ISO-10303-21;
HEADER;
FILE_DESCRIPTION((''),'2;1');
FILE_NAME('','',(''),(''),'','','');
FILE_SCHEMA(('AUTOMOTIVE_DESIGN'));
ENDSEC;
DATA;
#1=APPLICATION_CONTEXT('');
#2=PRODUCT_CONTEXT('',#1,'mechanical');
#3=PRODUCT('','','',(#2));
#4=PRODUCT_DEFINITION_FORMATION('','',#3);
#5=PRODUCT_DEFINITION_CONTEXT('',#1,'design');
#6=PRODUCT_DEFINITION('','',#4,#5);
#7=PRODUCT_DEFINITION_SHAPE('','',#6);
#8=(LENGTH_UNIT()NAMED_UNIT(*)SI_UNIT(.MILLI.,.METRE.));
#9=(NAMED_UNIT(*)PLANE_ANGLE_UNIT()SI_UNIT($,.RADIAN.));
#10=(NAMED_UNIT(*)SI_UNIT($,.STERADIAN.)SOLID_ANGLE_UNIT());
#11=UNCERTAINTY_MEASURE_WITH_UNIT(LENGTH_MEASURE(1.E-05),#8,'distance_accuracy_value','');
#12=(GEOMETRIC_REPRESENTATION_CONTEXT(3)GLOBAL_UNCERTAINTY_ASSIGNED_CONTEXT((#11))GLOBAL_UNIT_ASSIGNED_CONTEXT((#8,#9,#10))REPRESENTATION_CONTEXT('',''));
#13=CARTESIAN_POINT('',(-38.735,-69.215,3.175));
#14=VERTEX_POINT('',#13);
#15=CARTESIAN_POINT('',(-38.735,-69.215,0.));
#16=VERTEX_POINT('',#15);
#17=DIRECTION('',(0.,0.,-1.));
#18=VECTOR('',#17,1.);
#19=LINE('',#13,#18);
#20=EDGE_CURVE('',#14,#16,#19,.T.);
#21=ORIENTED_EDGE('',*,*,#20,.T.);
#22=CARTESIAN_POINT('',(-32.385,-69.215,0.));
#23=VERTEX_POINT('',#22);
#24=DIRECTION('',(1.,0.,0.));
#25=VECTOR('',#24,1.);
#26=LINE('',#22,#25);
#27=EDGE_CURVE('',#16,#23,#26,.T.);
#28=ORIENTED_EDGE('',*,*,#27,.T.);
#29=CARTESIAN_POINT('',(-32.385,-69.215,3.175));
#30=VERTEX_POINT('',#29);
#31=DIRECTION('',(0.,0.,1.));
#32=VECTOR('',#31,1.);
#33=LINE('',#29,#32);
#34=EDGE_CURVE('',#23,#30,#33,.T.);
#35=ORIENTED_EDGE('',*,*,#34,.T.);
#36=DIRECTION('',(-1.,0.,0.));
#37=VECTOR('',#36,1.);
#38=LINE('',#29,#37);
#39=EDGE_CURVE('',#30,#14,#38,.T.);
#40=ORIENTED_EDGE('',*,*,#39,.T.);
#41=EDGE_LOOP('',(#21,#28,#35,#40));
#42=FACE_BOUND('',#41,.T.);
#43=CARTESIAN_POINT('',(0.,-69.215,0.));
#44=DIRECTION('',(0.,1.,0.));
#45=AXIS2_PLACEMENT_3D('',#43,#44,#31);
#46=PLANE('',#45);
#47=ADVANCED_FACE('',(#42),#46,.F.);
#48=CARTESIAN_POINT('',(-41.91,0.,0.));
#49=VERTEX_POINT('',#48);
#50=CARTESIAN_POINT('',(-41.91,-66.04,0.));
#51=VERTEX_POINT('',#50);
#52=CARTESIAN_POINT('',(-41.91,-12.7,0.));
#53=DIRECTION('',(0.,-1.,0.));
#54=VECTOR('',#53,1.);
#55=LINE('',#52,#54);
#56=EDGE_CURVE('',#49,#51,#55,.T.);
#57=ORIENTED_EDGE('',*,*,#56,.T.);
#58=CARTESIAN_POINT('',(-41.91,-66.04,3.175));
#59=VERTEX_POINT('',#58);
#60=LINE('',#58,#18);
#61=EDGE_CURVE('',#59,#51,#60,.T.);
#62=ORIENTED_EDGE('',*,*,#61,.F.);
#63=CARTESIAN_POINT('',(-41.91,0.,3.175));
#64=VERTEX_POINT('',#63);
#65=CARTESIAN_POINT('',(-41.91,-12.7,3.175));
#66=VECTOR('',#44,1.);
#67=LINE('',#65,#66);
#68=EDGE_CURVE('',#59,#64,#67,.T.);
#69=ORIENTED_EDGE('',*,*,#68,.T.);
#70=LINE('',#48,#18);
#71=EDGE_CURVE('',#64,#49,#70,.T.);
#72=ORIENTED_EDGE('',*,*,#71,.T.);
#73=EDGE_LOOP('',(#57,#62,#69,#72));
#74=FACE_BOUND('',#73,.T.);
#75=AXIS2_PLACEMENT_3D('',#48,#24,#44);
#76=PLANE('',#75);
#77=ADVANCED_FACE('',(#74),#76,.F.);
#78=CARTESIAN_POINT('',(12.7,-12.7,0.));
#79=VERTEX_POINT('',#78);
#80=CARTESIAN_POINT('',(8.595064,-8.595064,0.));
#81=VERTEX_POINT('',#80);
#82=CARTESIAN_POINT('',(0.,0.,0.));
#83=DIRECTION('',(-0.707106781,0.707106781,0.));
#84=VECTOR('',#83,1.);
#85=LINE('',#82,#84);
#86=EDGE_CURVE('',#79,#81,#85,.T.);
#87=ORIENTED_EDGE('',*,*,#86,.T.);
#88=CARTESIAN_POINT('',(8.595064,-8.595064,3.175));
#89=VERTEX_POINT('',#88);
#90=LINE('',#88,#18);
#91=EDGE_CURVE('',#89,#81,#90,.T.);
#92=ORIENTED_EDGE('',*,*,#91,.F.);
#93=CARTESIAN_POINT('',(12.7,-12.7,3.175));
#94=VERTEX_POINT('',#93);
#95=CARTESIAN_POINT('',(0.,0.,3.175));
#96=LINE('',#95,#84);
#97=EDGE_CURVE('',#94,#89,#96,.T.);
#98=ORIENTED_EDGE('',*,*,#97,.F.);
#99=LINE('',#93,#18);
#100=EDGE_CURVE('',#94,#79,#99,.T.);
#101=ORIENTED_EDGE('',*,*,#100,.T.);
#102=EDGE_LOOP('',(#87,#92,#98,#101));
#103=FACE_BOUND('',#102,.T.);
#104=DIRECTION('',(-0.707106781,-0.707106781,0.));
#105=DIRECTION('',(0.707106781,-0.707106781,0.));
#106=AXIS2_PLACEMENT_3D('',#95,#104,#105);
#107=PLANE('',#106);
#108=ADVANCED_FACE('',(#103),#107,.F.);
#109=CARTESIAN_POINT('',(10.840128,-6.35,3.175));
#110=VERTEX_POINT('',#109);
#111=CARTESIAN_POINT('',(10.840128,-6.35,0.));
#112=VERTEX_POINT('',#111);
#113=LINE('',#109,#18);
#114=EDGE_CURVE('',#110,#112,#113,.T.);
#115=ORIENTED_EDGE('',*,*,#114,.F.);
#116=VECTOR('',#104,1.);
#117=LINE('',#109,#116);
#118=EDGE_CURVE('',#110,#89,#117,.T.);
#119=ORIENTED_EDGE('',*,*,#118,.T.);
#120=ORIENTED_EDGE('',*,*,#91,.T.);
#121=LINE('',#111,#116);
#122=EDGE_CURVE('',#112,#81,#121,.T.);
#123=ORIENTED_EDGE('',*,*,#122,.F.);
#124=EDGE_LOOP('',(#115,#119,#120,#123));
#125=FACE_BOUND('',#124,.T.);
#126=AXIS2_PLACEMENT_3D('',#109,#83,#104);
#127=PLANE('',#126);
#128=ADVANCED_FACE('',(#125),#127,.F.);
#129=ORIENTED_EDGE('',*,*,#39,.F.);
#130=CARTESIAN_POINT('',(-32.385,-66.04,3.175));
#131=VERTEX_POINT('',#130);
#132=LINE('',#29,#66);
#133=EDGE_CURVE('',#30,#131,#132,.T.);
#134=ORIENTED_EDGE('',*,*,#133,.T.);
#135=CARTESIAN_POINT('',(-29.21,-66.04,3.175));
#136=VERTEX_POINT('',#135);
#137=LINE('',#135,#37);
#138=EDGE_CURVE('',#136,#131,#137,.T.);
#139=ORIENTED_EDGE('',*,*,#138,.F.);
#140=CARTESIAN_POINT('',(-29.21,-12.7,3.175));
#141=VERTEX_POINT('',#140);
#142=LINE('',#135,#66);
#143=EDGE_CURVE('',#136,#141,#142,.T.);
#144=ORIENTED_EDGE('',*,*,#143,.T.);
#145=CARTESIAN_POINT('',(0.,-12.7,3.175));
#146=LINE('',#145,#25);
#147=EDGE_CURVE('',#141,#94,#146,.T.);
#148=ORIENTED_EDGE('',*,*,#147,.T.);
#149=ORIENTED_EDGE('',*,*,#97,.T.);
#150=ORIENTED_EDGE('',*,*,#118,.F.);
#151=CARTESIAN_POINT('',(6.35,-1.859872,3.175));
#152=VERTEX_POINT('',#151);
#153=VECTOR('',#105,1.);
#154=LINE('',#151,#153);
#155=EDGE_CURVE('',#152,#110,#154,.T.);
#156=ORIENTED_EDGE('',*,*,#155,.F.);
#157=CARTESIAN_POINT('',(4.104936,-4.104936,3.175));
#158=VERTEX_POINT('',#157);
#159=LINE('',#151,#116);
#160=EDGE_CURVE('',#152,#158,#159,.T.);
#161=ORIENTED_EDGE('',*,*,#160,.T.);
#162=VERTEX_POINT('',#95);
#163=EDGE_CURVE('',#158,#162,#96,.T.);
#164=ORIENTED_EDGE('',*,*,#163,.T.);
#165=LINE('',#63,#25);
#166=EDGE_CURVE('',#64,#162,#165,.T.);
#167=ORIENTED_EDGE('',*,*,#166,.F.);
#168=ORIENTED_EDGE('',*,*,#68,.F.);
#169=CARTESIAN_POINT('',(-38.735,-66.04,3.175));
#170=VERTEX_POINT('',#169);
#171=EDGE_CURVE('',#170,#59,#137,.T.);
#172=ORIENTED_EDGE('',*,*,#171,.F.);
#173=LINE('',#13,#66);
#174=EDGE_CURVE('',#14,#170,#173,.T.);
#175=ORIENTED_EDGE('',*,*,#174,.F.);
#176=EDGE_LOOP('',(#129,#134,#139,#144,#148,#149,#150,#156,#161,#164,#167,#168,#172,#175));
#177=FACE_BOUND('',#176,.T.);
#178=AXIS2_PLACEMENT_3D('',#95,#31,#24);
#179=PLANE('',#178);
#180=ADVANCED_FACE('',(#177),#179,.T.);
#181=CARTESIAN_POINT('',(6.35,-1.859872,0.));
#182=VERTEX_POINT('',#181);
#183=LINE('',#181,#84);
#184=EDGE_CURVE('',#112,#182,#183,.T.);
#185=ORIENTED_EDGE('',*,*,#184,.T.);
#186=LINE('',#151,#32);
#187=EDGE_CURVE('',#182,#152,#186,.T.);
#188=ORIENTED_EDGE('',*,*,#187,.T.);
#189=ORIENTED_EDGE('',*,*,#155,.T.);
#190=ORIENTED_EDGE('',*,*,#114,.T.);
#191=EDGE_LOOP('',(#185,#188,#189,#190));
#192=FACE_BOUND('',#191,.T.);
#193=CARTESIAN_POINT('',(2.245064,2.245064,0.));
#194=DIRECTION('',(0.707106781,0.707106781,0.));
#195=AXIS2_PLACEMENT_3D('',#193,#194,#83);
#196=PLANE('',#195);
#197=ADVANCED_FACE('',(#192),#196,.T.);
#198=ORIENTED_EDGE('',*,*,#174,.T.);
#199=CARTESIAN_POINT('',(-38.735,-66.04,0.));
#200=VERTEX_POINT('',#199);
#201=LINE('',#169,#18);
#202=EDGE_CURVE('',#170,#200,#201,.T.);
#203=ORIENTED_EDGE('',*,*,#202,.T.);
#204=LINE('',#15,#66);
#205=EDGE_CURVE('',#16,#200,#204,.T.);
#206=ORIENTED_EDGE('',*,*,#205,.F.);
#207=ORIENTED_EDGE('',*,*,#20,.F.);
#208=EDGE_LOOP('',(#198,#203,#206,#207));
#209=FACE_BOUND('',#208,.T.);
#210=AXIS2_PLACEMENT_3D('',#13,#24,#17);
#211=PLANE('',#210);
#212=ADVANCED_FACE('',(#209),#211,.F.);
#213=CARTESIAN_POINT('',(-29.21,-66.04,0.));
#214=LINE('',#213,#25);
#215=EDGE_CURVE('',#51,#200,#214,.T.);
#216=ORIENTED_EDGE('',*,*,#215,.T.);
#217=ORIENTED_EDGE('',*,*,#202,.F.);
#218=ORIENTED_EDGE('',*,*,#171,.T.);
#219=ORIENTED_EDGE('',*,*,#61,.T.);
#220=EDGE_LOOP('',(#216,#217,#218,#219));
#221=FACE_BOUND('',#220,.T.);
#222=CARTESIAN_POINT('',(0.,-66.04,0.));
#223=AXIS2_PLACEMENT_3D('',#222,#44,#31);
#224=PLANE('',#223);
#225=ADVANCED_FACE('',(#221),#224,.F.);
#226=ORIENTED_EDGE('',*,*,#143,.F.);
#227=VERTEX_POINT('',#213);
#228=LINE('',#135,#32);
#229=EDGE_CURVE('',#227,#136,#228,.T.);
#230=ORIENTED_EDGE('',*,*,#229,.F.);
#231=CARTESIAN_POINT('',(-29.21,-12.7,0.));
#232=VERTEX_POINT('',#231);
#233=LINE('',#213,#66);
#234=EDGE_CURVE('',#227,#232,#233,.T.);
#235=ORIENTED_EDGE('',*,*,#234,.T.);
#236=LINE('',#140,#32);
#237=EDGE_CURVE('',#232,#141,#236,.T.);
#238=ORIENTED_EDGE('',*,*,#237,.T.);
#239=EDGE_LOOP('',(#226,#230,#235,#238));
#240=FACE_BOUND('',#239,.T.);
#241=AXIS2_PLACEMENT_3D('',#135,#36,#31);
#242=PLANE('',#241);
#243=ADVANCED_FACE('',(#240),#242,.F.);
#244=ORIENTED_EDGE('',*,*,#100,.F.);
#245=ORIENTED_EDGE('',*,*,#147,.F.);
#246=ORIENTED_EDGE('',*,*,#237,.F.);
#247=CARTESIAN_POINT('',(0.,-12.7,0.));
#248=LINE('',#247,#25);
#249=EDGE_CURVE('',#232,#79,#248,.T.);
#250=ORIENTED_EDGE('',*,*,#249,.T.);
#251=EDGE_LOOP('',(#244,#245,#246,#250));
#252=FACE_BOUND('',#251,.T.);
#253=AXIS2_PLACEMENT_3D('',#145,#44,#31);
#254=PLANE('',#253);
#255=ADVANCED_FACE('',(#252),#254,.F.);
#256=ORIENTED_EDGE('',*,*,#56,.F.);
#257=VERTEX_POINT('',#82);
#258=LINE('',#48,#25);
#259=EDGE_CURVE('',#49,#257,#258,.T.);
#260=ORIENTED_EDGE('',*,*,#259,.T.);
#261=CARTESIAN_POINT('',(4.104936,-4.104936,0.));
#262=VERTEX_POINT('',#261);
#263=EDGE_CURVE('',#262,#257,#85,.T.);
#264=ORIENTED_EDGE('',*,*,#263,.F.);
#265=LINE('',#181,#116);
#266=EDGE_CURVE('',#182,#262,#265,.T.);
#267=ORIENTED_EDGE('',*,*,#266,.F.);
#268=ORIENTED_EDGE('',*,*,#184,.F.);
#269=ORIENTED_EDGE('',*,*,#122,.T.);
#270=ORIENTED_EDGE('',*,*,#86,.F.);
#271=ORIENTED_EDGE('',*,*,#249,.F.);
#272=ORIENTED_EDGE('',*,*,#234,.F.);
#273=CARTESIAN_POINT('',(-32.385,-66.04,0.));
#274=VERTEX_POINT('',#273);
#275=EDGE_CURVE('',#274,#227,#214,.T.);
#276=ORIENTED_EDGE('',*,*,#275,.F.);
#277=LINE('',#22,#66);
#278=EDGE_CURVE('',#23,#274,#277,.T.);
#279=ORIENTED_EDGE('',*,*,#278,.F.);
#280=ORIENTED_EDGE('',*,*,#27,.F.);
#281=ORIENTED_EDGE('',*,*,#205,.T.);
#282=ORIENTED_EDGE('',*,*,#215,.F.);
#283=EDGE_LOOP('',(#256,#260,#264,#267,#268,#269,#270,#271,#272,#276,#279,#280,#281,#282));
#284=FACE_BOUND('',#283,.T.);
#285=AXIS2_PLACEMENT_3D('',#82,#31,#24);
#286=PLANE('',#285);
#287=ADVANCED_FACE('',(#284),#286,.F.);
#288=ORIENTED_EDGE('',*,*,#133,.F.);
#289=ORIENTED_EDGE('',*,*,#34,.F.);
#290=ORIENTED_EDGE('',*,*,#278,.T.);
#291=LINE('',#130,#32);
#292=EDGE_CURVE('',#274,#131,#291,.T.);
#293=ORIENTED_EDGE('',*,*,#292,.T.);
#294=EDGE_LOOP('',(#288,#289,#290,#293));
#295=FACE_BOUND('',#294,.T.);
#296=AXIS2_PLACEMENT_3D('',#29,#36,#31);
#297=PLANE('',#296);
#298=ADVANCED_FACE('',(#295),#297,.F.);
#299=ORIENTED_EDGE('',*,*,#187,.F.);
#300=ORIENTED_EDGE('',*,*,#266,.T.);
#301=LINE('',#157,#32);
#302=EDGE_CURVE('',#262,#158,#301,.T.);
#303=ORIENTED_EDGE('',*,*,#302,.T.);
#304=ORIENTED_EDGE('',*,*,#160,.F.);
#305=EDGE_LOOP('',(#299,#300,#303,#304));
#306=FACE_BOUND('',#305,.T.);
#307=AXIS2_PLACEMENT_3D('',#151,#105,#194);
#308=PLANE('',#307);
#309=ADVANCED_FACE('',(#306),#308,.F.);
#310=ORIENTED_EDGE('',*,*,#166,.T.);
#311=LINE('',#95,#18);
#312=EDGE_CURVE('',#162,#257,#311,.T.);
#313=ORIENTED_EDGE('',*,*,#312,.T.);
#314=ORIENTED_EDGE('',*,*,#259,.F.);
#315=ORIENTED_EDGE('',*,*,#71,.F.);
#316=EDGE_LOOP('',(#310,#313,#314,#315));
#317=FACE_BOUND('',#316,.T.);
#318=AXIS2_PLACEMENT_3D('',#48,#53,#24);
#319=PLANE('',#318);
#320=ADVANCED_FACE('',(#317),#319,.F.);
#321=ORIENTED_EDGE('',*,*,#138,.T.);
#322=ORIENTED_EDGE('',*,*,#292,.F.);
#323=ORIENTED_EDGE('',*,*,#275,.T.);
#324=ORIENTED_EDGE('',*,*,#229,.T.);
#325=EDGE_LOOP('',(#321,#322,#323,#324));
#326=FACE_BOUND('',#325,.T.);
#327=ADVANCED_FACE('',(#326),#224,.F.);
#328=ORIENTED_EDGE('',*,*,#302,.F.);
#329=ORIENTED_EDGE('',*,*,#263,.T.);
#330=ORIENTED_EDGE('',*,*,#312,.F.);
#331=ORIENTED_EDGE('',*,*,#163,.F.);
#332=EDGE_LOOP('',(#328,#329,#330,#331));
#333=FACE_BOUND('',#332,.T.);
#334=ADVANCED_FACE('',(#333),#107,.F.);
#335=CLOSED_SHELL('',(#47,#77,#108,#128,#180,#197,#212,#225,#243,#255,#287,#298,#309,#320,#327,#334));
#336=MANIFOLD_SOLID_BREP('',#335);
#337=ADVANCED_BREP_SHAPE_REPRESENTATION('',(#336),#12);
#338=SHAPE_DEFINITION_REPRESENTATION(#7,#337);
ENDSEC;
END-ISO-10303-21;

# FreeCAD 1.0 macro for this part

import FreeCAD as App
import Part
import Sketcher
Q = App.Units.Quantity


def add_polygon(sketch, points):
    """Adds a closed chain of lines whose ends are joined by coincident constraints."""
    first, n = sketch.GeometryCount, len(points)
    for a, b in zip(points, points[1:] + points[:1]):
        sketch.addGeometry(Part.LineSegment(App.Vector(*a, 0), App.Vector(*b, 0)), False)
    for i in range(n):
        sketch.addConstraint(Sketcher.Constraint("Coincident", first + i, 2, first + (i + 1) % n, 1))

doc = App.newDocument("Part")
body = doc.addObject("PartDesign::Body", "Body")

# Sketch on XY plane
sketch1 = doc.addObject("Sketcher::SketchObject", "Sketch")
body.addObject(sketch1)
sketch1.AttachmentSupport = (doc.XY_Plane, [""])
sketch1.MapMode = "FlatFace"
add_polygon(sketch1, [(0, 0), (0, -13), (13, -13), (13, 0)])  # lines 0-3
sketch1.addConstraint(Sketcher.Constraint("Vertical", 0))
sketch1.addConstraint(Sketcher.Constraint("Horizontal", 1))
sketch1.addConstraint(Sketcher.Constraint("Vertical", 2))
sketch1.addConstraint(Sketcher.Constraint("Horizontal", 3))
sketch1.addConstraint(Sketcher.Constraint("Coincident", 3, 2, -1, 1))
sketch1.addConstraint(Sketcher.Constraint("Equal", 3, 0))
sketch1.addConstraint(Sketcher.Constraint("DistanceX", 1, 1, 1, 2, Q("0.5 in")))
pad1 = doc.addObject("PartDesign::Pad", "Pad")
body.addObject(pad1)
pad1.Profile = sketch1
pad1.Length = Q("0.125 in")

# Sketch on XY plane
sketch2 = doc.addObject("Sketcher::SketchObject", "Sketch001")
body.addObject(sketch2)
sketch2.AttachmentSupport = (doc.XY_Plane, [""])
sketch2.MapMode = "FlatFace"
add_polygon(sketch2, [(13, -13), (0, 0), (13, 0)])  # lines 0-2
sketch2.addConstraint(Sketcher.Constraint("Horizontal", 1))
sketch2.addConstraint(Sketcher.Constraint("Vertical", 2))
sketch2.addConstraint(Sketcher.Constraint("Coincident", 0, 2, -1, 1))
sketch2.addConstraint(Sketcher.Constraint("Equal", 1, 2))
sketch2.addConstraint(Sketcher.Constraint("DistanceX", 1, 1, 1, 2, Q("0.5 in")))
pocket1 = doc.addObject("PartDesign::Pocket", "Pocket")
body.addObject(pocket1)
pocket1.Profile = sketch2
pocket1.Type = "ThroughAll"
pocket1.Reversed = True

# Sketch on an angled plane
sketch3 = doc.addObject("Sketcher::SketchObject", "Sketch002")
body.addObject(sketch3)
sketch3.Placement = App.Placement(App.Vector(0, 0, 0), App.Rotation(App.Vector(0, 0, -1), App.Vector(-0.707106781, 0.707106781, 0), App.Vector(0.707106781, 0.707106781, 0), "ZXY"))
add_polygon(sketch3, [(-3.2, -5.8), (-3.2, -12.2), (0, -12.2), (0, -5.8)])  # lines 0-3
sketch3.addConstraint(Sketcher.Constraint("Vertical", 0))
sketch3.addConstraint(Sketcher.Constraint("Horizontal", 1))
sketch3.addConstraint(Sketcher.Constraint("Vertical", 2))
sketch3.addConstraint(Sketcher.Constraint("Horizontal", 3))
sketch3.addConstraint(Sketcher.Constraint("PointOnObject", 1, 2, -2))
sketch3.addConstraint(Sketcher.Constraint("DistanceY", 0, 2, 0, 1, Q("0.25 in")))
sketch3.addConstraint(Sketcher.Constraint("DistanceX", 1, 1, 1, 2, Q("0.125 in")))
sketch3.addConstraint(Sketcher.Constraint("DistanceY", 0, 2, -1, 1, 12.155256))
pad2 = doc.addObject("PartDesign::Pad", "Pad001")
body.addObject(pad2)
pad2.Profile = sketch3
pad2.Length = Q("0.125 in")

# Sketch on YZ plane
sketch4 = doc.addObject("Sketcher::SketchObject", "Sketch003")
body.addObject(sketch4)
sketch4.AttachmentSupport = (doc.YZ_Plane, [""])
sketch4.MapMode = "FlatFace"
add_polygon(sketch4, [(0, 0), (-12.7, 0), (-12.7, 3.2), (0, 3.2)])  # lines 0-3
sketch4.addConstraint(Sketcher.Constraint("Horizontal", 0))
sketch4.addConstraint(Sketcher.Constraint("Vertical", 1))
sketch4.addConstraint(Sketcher.Constraint("Horizontal", 2))
sketch4.addConstraint(Sketcher.Constraint("Vertical", 3))
sketch4.addConstraint(Sketcher.Constraint("Coincident", 3, 2, -1, 1))
sketch4.addConstraint(Sketcher.Constraint("DistanceX", 0, 2, 0, 1, Q("0.5 in")))
sketch4.addConstraint(Sketcher.Constraint("DistanceY", 1, 1, 1, 2, Q("0.125 in")))
pad3 = doc.addObject("PartDesign::Pad", "Pad002")
body.addObject(pad3)
pad3.Profile = sketch4
pad3.Length = Q("1.65 in")
pad3.Reversed = True

# Sketch on XZ plane
sketch5 = doc.addObject("Sketcher::SketchObject", "Sketch004")
body.addObject(sketch5)
sketch5.AttachmentSupport = (doc.XZ_Plane, [""])
sketch5.MapMode = "FlatFace"
sketch5.AttachmentOffset = App.Placement(App.Vector(0, 0, 0.5 * 25.4), App.Rotation())
add_polygon(sketch5, [(-29.2, 0), (-29.2, 3.2), (-41.9, 3.2), (-41.9, 0)])  # lines 0-3
sketch5.addConstraint(Sketcher.Constraint("Vertical", 0))
sketch5.addConstraint(Sketcher.Constraint("Horizontal", 1))
sketch5.addConstraint(Sketcher.Constraint("Vertical", 2))
sketch5.addConstraint(Sketcher.Constraint("Horizontal", 3))
sketch5.addConstraint(Sketcher.Constraint("PointOnObject", 2, 2, -1))
sketch5.addConstraint(Sketcher.Constraint("DistanceX", 1, 2, 1, 1, Q("0.5 in")))
sketch5.addConstraint(Sketcher.Constraint("DistanceY", 0, 1, 0, 2, Q("0.125 in")))
sketch5.addConstraint(Sketcher.Constraint("DistanceX", 0, 2, -1, 1, Q("1.15 in")))
pad4 = doc.addObject("PartDesign::Pad", "Pad003")
body.addObject(pad4)
pad4.Profile = sketch5
pad4.Length = Q("2.1 in")

# Sketch on XZ plane
sketch6 = doc.addObject("Sketcher::SketchObject", "Sketch005")
body.addObject(sketch6)
sketch6.AttachmentSupport = (doc.XZ_Plane, [""])
sketch6.MapMode = "FlatFace"
sketch6.AttachmentOffset = App.Placement(App.Vector(0, 0, 2.6 * 25.4), App.Rotation())
add_polygon(sketch6, [(-38.7, 3.2), (-38.7, 0), (-32.4, 0), (-32.4, 3.2)])  # lines 0-3
sketch6.addConstraint(Sketcher.Constraint("Vertical", 0))
sketch6.addConstraint(Sketcher.Constraint("Horizontal", 1))
sketch6.addConstraint(Sketcher.Constraint("Vertical", 2))
sketch6.addConstraint(Sketcher.Constraint("Horizontal", 3))
sketch6.addConstraint(Sketcher.Constraint("PointOnObject", 0, 2, -1))
sketch6.addConstraint(Sketcher.Constraint("DistanceX", 1, 1, 1, 2, Q("0.25 in")))
sketch6.addConstraint(Sketcher.Constraint("DistanceY", 0, 2, 0, 1, Q("0.125 in")))
sketch6.addConstraint(Sketcher.Constraint("DistanceX", 0, 2, -1, 1, Q("1.525 in")))
pad5 = doc.addObject("PartDesign::Pad", "Pad004")
body.addObject(pad5)
pad5.Profile = sketch6
pad5.Length = Q("0.125 in")

doc.recompute()
